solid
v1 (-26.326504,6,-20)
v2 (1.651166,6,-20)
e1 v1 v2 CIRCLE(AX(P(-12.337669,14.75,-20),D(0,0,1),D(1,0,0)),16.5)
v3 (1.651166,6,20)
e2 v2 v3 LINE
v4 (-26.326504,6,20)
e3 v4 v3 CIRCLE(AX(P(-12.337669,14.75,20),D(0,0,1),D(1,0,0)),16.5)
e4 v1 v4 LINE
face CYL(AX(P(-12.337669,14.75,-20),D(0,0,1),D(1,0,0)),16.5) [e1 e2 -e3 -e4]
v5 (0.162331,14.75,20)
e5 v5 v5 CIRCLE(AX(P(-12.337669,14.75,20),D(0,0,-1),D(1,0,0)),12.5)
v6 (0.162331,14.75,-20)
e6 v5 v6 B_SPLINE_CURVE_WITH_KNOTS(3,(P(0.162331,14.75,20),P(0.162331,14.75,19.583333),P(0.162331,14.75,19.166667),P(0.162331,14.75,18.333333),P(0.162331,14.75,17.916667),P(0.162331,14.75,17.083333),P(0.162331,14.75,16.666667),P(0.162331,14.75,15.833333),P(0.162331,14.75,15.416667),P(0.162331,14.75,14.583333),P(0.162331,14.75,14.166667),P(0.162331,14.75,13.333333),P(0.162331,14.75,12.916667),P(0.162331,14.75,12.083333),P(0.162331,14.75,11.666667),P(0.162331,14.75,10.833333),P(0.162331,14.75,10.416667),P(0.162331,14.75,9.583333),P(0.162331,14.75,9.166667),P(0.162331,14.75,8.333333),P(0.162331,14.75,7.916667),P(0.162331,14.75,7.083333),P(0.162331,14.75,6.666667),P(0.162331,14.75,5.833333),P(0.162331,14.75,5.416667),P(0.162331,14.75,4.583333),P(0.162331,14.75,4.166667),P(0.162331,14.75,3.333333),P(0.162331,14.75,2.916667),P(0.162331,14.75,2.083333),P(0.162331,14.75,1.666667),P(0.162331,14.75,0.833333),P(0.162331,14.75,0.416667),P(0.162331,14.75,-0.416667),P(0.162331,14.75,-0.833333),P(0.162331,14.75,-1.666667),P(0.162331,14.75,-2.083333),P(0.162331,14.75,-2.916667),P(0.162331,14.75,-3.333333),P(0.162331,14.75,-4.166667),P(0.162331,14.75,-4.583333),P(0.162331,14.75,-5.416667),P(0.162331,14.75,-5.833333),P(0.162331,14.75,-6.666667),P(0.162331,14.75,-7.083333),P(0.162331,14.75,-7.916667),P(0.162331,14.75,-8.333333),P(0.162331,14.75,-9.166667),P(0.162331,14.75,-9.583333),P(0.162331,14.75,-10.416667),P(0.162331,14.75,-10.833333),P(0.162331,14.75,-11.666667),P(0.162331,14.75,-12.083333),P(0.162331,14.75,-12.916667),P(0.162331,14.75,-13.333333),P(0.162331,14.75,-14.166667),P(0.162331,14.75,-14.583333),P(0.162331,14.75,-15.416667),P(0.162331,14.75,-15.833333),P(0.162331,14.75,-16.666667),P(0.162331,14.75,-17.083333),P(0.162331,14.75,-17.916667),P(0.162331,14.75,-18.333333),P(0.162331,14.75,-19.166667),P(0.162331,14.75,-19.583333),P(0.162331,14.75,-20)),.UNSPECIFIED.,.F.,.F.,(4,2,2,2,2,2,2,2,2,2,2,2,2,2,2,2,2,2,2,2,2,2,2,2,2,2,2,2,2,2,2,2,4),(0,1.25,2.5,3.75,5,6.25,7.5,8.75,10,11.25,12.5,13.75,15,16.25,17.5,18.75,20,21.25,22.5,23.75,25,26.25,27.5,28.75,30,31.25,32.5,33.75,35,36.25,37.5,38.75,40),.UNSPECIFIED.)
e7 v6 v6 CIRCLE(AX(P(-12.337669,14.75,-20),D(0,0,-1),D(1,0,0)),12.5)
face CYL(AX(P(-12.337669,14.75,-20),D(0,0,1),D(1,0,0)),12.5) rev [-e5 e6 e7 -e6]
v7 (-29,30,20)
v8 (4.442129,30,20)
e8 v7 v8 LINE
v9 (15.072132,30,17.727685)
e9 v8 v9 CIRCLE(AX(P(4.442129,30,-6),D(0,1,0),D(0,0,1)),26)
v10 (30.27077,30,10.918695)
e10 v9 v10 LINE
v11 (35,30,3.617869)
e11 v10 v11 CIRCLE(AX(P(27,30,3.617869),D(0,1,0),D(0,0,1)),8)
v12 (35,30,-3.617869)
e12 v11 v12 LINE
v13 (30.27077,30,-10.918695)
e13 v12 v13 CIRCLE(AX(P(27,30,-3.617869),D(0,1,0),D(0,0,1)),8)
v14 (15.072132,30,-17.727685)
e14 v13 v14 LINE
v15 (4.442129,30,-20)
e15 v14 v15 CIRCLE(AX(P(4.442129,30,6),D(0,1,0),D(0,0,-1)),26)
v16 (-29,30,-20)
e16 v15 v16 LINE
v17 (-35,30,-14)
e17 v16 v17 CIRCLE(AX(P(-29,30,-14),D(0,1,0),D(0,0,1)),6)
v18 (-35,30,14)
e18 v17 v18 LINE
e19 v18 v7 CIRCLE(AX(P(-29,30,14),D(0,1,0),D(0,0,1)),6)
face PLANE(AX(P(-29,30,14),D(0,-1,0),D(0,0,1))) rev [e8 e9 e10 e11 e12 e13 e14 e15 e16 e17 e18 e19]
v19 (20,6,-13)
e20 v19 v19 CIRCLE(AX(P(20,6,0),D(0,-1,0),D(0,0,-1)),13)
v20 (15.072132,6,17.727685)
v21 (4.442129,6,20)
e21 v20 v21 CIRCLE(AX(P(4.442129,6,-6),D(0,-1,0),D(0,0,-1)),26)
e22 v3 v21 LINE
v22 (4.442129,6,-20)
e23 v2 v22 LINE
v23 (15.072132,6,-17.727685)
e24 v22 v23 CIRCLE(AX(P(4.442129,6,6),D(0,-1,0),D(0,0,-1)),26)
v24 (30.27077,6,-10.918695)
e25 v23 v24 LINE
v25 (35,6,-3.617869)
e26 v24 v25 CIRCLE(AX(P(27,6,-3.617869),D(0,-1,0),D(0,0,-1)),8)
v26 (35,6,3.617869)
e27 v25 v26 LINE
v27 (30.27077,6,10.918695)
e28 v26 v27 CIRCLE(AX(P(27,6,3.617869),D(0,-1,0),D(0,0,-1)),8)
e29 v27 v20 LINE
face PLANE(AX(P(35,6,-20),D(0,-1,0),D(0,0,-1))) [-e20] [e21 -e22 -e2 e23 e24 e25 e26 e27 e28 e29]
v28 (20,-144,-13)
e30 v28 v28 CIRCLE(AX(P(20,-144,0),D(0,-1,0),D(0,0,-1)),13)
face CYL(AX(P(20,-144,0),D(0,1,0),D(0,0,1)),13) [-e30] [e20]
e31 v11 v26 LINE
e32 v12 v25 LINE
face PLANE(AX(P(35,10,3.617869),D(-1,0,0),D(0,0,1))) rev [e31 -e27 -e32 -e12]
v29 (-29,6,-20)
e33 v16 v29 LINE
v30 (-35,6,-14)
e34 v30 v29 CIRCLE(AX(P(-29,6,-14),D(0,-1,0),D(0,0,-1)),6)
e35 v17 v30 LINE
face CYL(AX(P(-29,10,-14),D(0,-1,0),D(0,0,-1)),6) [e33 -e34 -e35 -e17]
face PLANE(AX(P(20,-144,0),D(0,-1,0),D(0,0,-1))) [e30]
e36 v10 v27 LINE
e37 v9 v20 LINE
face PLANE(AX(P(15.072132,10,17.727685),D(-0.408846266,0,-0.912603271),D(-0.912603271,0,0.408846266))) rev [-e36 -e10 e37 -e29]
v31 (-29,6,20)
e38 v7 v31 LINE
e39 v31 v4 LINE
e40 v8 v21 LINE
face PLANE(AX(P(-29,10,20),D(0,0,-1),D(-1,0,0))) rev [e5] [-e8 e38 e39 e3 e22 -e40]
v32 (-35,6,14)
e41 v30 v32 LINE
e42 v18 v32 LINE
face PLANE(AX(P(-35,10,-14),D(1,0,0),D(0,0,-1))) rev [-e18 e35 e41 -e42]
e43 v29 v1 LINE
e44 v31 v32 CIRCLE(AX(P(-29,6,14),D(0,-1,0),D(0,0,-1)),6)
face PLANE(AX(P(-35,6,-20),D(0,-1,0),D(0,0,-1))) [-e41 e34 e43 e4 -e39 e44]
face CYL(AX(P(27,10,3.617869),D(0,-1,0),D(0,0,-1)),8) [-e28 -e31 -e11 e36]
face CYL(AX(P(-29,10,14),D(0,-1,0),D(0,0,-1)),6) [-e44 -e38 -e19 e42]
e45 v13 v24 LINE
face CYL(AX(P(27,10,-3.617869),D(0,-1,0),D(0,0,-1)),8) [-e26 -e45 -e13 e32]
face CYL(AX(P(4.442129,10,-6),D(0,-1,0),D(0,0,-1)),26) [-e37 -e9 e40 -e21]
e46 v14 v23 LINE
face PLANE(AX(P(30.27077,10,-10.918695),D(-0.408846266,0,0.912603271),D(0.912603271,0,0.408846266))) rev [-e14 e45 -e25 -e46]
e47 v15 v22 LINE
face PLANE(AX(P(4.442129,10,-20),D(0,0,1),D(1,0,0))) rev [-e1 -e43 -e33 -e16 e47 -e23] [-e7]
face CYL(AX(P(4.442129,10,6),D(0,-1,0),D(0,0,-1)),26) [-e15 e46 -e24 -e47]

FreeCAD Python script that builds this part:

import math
import FreeCAD as App
import Part
import Sketcher
from FreeCAD import Vector
Q = App.Units.Quantity


def add_polygon(sketch, points):
    """Adds a closed chain of lines whose ends are joined by coincident constraints."""
    first, n = sketch.GeometryCount, len(points)
    for a, b in zip(points, points[1:] + points[:1]):
        sketch.addGeometry(Part.LineSegment(App.Vector(*a, 0), App.Vector(*b, 0)), False)
    for i in range(n):
        sketch.addConstraint(Sketcher.Constraint("Coincident", first + i, 2, first + (i + 1) % n, 1))

doc = App.newDocument("Part")
params = doc.addObject("Spreadsheet::Sheet", "Params")
for row, (alias, value) in enumerate([
    ("sketch1_radius", "6 mm"),
    ("sketch1_radius2", "26 mm"),
    ("sketch1_radius3", "8 mm"),
    ("sketch1_height", "28 mm"),
    ("pad1_length", "20 mm"),
    ("sketch2_radius", "12.5 mm"),
    ("sketch2_radius2", "16.5 mm"),
    ("sketch2_height", "4 mm"),
    ("sketch2_width", "11.1 mm"),
    ("sketch3_diameter", "26 mm"),
    ("pad2_length", "150 mm"),
    ("sketch4_diameter", "25 mm"),
], start=1):
    params.set(f"A{row}", alias)
    params.set(f"B{row}", "=" + value)
    params.setAlias(f"B{row}", alias)

body = doc.addObject("PartDesign::Body", "Body")

sketch1 = doc.addObject("Sketcher::SketchObject", "Sketch")
body.addObject(sketch1)
sketch1.AttachmentSupport = (doc.XZ_Plane, [""])
sketch1.MapMode = "FlatFace"
sketch1.addGeometry([
    Part.LineSegment(Vector(4, -20, 0), Vector(-29, -20, 0)),
    Part.ArcOfCircle(Part.Circle(Vector(-29, -14, 0), Vector(0, 0, 1), 6), math.radians(180), math.radians(270)),
    Part.LineSegment(Vector(-35, -14, 0), Vector(-35, 14, 0)),
    Part.ArcOfCircle(Part.Circle(Vector(-29, 14, 0), Vector(0, 0, 1), 6), math.radians(90), math.radians(180)),
    Part.LineSegment(Vector(-29, 20, 0), Vector(4, 20, 0)),
    Part.ArcOfCircle(Part.Circle(Vector(4, -6, 0), Vector(0, 0, 1), 26), math.radians(66), math.radians(90)),
    Part.LineSegment(Vector(15, 18, 0), Vector(30, 11, 0)),
    Part.ArcOfCircle(Part.Circle(Vector(27, 4, 0), Vector(0, 0, 1), 8), math.radians(0), math.radians(66)),
    Part.LineSegment(Vector(35, 4, 0), Vector(35, -4, 0)),
    Part.ArcOfCircle(Part.Circle(Vector(27, -4, 0), Vector(0, 0, 1), 8), math.radians(-66), math.radians(0)),
    Part.LineSegment(Vector(30, -11, 0), Vector(15, -18, 0)),
    Part.ArcOfCircle(Part.Circle(Vector(4, 6, 0), Vector(0, 0, 1), 26), math.radians(-90), math.radians(-66)),
], False)
sketch1.addConstraint([
    Sketcher.Constraint("Tangent", 0, 2, 1, 2),
    Sketcher.Constraint("Tangent", 1, 1, 2, 1),
    Sketcher.Constraint("Tangent", 2, 2, 3, 2),
    Sketcher.Constraint("Tangent", 3, 1, 4, 1),
    Sketcher.Constraint("Tangent", 4, 2, 5, 2),
    Sketcher.Constraint("Tangent", 5, 1, 6, 1),
    Sketcher.Constraint("Tangent", 6, 2, 7, 2),
    Sketcher.Constraint("Tangent", 7, 1, 8, 1),
    Sketcher.Constraint("Tangent", 8, 2, 9, 2),
    Sketcher.Constraint("Tangent", 9, 1, 10, 1),
    Sketcher.Constraint("Tangent", 10, 2, 11, 2),
    Sketcher.Constraint("Tangent", 11, 1, 0, 1),
    Sketcher.Constraint("Horizontal", 0),
    Sketcher.Constraint("Vertical", 2),
    Sketcher.Constraint("Horizontal", 4),
    Sketcher.Constraint("Vertical", 8),
    Sketcher.Constraint("Equal", 1, 3),
    Sketcher.Constraint("Equal", 7, 9),
    Sketcher.Constraint("Equal", 5, 11),
    Sketcher.Constraint("Symmetric", 5, 3, 11, 3, -1),
    Sketcher.Constraint("Vertical", 6, 2, 9, 1),
    Sketcher.Constraint("Radius", 1, Q("6 mm")),
    Sketcher.Constraint("Radius", 5, Q("26 mm")),
    Sketcher.Constraint("Radius", 7, Q("8 mm")),
    Sketcher.Constraint("DistanceY", 2, 1, 2, 2, Q("28 mm")),
    Sketcher.Constraint("DistanceX", 1, 3, -1, 1, Q("29 mm")),
    Sketcher.Constraint("DistanceX", -1, 1, 7, 3, Q("27 mm")),
    Sketcher.Constraint("DistanceX", 0, 2, 0, 1, Q("33.442129 mm")),
    Sketcher.Constraint("DistanceY", 8, 2, 8, 1, Q("7.235738 mm")),
])
sketch1.setExpression("Constraints[21]", "Params.sketch1_radius")
sketch1.setExpression("Constraints[22]", "Params.sketch1_radius2")
sketch1.setExpression("Constraints[23]", "Params.sketch1_radius3")
sketch1.setExpression("Constraints[24]", "Params.sketch1_height")
pad1 = doc.addObject("PartDesign::Pad", "Pad")
body.addObject(pad1)
pad1.Profile = sketch1
pad1.setExpression("Length", "Params.pad1_length")
pad1.Midplane = True

sketch2 = doc.addObject("Sketcher::SketchObject", "Sketch001")
body.addObject(sketch2)
sketch2.AttachmentSupport = (doc.XY_Plane, [""])
sketch2.MapMode = "FlatFace"
sketch2.AttachmentOffset = App.Placement(Vector(0, 0, 20), App.Rotation())
add_polygon(sketch2, [(-44.3, 19.3), (-44.3, -19.3), (44.3, -19.3), (44.3, 19.3)])
sketch2.addGeometry(Part.LineSegment(Vector(-35, 6, 0), Vector(-35, 10, 0)), False)
sketch2.addGeometry(Part.LineSegment(Vector(-35, 10, 0), Vector(-23.9, 10, 0)), False)
sketch2.addGeometry(Part.ArcOfCircle(Part.Circle(Vector(-12.3, 14.8, 0), Vector(0, 0, 1), 12.5), math.radians(-158), math.radians(-22)), False)
sketch2.addGeometry(Part.LineSegment(Vector(-0.8, 10, 0), Vector(35, 10, 0)), False)
sketch2.addGeometry(Part.LineSegment(Vector(35, 10, 0), Vector(35, 6, 0)), False)
sketch2.addGeometry(Part.LineSegment(Vector(35, 6, 0), Vector(1.7, 6, 0)), False)
sketch2.addGeometry(Part.ArcOfCircle(Part.Circle(Vector(-12.3, 14.8, 0), Vector(0, 0, 1), 16.5), math.radians(-148), math.radians(-32)), False)
sketch2.addGeometry(Part.LineSegment(Vector(-26.3, 6, 0), Vector(-35, 6, 0)), False)
sketch2.addConstraint([
    Sketcher.Constraint("Coincident", 4, 2, 5, 1),
    Sketcher.Constraint("Coincident", 5, 2, 6, 1),
    Sketcher.Constraint("Coincident", 6, 2, 7, 1),
    Sketcher.Constraint("Coincident", 7, 2, 8, 1),
    Sketcher.Constraint("Coincident", 8, 2, 9, 1),
    Sketcher.Constraint("Coincident", 9, 2, 10, 2),
    Sketcher.Constraint("Coincident", 10, 1, 11, 1),
    Sketcher.Constraint("Coincident", 11, 2, 4, 1),
    Sketcher.Constraint("Vertical", 0),
    Sketcher.Constraint("Horizontal", 1),
    Sketcher.Constraint("Vertical", 2),
    Sketcher.Constraint("Horizontal", 3),
    Sketcher.Constraint("Vertical", 4),
    Sketcher.Constraint("Horizontal", 5),
    Sketcher.Constraint("Horizontal", 7),
    Sketcher.Constraint("Vertical", 8),
    Sketcher.Constraint("Horizontal", 9),
    Sketcher.Constraint("Horizontal", 11),
    Sketcher.Constraint("Coincident", 10, 3, 6, 3),
    Sketcher.Constraint("Symmetric", 0, 2, 2, 2, -1, 1),
    Sketcher.Constraint("Symmetric", 4, 2, 7, 2, -2),
    Sketcher.Constraint("Horizontal", 9, 2, 10, 1),
    Sketcher.Constraint("Radius", 6, Q("12.5 mm")),
    Sketcher.Constraint("Radius", 10, Q("16.5 mm")),
    Sketcher.Constraint("DistanceY", 4, 1, 4, 2, Q("4 mm")),
    Sketcher.Constraint("DistanceX", 5, 1, 5, 2, Q("11.1 mm")),
    Sketcher.Constraint("DistanceX", 4, 2, -1, 1, Q("35 mm")),
    Sketcher.Constraint("DistanceY", -1, 1, 4, 2, Q("10 mm")),
    Sketcher.Constraint("DistanceX", 1, 1, 1, 2, Q("88.614 mm")),
    Sketcher.Constraint("DistanceY", 0, 2, 0, 1, Q("38.614 mm")),
    Sketcher.Constraint("DistanceY", -1, 1, 6, 3, Q("14.75 mm")),
])
sketch2.setExpression("Constraints[26]", "Params.sketch2_radius")
sketch2.setExpression("Constraints[27]", "Params.sketch2_radius2")
sketch2.setExpression("Constraints[28]", "Params.sketch2_height")
sketch2.setExpression("Constraints[29]", "Params.sketch2_width")
pocket1 = doc.addObject("PartDesign::Pocket", "Pocket")
body.addObject(pocket1)
pocket1.Profile = sketch2
pocket1.Type = "ThroughAll"

sketch3 = doc.addObject("Sketcher::SketchObject", "Sketch002")
body.addObject(sketch3)
sketch3.AttachmentSupport = (doc.XZ_Plane, [""])
sketch3.MapMode = "FlatFace"
sketch3.AttachmentOffset = App.Placement(Vector(0, 0, -6), App.Rotation())
sketch3.addGeometry(Part.Circle(Vector(20, 0, 0), Vector(0, 0, 1), 13), False)
sketch3.addConstraint([
    Sketcher.Constraint("PointOnObject", 0, 3, -1),
    Sketcher.Constraint("Diameter", 0, Q("26 mm")),
    Sketcher.Constraint("DistanceX", -1, 1, 0, 3, Q("20 mm")),
])
sketch3.setExpression("Constraints[1]", "Params.sketch3_diameter")
pad2 = doc.addObject("PartDesign::Pad", "Pad001")
body.addObject(pad2)
pad2.Profile = sketch3
pad2.setExpression("Length", "Params.pad2_length")
doc.recompute()

datumplane = doc.addObject("PartDesign::Plane", "DatumPlane")
body.addObject(datumplane)
datumplane.AttachmentSupport = (doc.XZ_Plane, [""])
datumplane.MapMode = "FlatFace"
datumplane.AttachmentOffset = App.Placement(Vector(0, 0, -10), App.Rotation())
mirrored = doc.addObject("PartDesign::Mirrored", "Mirrored")
body.addObject(mirrored)
mirrored.Originals = [pad1]
mirrored.MirrorPlane = (datumplane, [""])
body.Tip = mirrored

sketch4 = doc.addObject("Sketcher::SketchObject", "Sketch003")
body.addObject(sketch4)
sketch4.AttachmentSupport = (doc.XY_Plane, [""])
sketch4.MapMode = "FlatFace"
sketch4.AttachmentOffset = App.Placement(Vector(0, 0, 20), App.Rotation())
sketch4.addGeometry(Part.Circle(Vector(-12, 15, 0), Vector(0, 0, 1), 12), False)
sketch4.addConstraint([
    Sketcher.Constraint("Diameter", 0, Q("25 mm")),
    Sketcher.Constraint("DistanceY", -1, 1, 0, 3, Q("14.75 mm")),
    Sketcher.Constraint("DistanceX", 0, 3, -1, 1, Q("12.337669 mm")),
])
sketch4.setExpression("Constraints[0]", "Params.sketch4_diameter")
pocket2 = doc.addObject("PartDesign::Pocket", "Pocket001")
body.addObject(pocket2)
pocket2.Profile = sketch4
pocket2.Type = "ThroughAll"

doc.recompute()
